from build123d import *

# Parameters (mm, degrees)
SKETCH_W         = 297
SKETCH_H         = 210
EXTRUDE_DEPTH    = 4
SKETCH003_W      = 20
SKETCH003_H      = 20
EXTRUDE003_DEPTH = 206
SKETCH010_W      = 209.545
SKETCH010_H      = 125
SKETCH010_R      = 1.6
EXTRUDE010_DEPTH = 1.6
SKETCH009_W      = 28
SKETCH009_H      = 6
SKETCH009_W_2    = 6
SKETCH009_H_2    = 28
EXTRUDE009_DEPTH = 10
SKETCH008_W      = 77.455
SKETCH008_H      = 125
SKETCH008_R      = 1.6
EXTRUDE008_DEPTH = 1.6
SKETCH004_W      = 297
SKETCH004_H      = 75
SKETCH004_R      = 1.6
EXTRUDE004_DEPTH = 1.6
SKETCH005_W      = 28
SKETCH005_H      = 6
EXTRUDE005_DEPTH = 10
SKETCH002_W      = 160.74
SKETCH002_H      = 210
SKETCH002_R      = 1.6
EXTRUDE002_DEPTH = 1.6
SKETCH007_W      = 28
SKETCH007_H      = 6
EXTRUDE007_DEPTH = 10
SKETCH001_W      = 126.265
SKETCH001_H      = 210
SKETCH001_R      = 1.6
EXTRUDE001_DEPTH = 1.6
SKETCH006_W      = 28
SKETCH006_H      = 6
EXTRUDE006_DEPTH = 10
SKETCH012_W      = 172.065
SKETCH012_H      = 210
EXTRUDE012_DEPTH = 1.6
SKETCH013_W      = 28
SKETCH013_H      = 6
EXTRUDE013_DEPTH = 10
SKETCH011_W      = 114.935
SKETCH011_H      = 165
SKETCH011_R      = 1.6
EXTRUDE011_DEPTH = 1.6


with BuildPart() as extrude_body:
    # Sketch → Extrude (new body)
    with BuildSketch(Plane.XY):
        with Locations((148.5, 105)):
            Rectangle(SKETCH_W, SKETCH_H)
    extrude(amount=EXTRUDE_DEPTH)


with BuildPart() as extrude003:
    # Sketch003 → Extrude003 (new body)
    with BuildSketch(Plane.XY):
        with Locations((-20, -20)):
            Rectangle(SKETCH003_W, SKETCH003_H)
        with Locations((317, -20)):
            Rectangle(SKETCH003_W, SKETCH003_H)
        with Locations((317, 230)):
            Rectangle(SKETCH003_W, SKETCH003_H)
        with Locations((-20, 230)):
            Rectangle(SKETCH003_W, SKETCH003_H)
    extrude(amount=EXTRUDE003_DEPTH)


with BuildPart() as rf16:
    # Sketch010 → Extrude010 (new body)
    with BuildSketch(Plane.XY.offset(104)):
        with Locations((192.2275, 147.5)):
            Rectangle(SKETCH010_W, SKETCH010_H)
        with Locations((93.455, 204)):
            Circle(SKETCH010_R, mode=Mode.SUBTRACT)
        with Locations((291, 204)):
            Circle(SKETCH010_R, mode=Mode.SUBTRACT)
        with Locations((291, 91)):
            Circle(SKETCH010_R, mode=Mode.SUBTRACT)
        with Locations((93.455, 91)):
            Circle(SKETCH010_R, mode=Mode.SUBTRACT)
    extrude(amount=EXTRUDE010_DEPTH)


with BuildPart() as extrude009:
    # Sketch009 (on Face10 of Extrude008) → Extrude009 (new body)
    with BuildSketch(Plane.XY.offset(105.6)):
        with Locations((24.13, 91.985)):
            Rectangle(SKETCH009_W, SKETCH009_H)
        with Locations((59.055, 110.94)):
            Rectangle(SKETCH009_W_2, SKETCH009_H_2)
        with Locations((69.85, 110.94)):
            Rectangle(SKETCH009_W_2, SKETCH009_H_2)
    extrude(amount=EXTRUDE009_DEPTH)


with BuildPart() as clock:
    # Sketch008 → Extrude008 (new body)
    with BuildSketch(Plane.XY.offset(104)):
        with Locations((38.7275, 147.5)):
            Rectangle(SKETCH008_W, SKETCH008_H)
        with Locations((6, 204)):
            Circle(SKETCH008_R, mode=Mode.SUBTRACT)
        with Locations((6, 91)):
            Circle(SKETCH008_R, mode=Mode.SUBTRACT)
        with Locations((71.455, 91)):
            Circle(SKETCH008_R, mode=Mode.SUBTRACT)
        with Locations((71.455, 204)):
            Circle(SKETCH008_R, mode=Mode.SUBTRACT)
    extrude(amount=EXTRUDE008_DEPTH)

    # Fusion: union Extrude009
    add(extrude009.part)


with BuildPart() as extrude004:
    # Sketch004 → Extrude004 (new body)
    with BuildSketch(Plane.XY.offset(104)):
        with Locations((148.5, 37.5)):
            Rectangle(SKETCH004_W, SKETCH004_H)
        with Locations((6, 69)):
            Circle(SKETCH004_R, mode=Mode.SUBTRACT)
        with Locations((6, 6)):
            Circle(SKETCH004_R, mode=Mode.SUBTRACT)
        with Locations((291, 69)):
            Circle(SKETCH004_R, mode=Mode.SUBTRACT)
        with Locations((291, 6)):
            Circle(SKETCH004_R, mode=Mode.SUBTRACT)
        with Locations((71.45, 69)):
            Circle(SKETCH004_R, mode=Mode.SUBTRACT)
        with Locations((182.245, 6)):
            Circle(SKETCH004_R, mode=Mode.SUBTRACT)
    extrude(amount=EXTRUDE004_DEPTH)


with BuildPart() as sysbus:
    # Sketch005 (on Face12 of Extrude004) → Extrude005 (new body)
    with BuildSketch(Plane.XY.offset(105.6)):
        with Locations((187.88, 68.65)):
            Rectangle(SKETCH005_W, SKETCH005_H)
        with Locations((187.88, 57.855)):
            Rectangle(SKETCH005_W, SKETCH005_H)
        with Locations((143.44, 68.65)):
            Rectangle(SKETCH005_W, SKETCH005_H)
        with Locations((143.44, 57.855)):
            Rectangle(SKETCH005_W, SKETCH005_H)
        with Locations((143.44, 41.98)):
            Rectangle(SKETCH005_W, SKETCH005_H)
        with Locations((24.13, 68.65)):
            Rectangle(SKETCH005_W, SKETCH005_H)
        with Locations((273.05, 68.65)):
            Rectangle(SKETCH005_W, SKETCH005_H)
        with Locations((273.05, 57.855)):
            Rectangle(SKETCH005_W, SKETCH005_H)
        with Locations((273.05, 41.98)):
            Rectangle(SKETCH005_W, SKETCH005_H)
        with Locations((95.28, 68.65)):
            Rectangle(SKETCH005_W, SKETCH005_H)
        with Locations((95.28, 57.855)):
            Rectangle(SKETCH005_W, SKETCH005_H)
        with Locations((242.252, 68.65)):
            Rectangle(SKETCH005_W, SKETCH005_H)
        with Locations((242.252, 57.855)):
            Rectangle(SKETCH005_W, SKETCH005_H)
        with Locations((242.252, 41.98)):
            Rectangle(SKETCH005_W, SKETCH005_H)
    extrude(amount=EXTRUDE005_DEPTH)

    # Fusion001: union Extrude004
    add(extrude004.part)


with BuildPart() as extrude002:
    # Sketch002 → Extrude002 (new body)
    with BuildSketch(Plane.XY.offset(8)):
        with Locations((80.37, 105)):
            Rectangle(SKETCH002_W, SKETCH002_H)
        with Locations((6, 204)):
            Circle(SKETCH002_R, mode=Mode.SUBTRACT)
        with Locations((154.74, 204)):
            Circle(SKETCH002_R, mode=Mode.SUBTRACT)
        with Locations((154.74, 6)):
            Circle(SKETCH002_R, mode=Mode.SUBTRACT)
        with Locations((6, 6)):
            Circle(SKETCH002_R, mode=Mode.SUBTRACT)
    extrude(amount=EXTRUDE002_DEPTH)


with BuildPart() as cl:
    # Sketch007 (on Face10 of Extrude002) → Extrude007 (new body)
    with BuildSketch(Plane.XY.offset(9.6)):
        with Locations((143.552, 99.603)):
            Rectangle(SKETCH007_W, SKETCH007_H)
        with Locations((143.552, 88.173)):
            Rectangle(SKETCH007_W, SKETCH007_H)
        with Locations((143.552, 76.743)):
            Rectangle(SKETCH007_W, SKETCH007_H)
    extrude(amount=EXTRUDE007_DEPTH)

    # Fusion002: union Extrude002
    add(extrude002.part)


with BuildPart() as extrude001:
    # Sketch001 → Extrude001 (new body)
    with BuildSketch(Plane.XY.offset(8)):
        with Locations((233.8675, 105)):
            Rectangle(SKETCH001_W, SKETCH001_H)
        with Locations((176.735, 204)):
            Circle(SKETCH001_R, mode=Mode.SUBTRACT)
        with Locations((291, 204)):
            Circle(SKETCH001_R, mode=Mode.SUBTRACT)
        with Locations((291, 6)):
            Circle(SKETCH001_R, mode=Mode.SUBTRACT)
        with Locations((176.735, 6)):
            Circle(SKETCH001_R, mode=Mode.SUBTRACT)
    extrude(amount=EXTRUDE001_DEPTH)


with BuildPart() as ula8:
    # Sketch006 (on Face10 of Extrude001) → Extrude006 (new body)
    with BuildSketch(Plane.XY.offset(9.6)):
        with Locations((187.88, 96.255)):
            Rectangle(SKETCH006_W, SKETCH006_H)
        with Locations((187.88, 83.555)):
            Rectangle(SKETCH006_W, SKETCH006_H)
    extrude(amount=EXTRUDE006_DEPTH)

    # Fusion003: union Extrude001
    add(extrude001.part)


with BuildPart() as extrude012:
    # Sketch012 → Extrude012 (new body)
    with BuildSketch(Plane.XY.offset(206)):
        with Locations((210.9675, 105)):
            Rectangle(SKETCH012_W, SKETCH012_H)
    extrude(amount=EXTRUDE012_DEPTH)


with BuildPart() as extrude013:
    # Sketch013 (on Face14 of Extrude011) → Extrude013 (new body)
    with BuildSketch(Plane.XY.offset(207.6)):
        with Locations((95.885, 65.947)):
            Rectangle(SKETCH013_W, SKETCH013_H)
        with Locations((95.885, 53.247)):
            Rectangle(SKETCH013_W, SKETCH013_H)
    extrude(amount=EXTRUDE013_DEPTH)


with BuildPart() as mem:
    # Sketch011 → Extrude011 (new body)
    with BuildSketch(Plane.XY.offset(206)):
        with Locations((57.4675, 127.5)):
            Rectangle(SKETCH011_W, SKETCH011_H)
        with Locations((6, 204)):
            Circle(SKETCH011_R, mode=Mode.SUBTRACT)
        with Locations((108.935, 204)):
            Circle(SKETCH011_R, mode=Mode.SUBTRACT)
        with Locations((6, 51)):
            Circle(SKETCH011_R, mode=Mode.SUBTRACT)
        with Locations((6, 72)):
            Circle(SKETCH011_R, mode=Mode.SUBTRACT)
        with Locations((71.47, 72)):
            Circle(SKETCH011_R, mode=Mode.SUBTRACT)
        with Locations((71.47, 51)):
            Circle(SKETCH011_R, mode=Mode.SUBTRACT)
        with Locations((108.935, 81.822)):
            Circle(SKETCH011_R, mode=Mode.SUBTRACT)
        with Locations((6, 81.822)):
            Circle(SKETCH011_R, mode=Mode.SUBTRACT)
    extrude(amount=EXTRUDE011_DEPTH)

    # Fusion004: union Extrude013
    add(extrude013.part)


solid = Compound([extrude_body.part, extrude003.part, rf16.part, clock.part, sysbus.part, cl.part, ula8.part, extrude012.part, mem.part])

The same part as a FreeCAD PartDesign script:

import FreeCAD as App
import Part
import Sketcher


def add_polygon(sketch, points):
    """Adds a closed chain of lines whose ends are joined by coincident constraints."""
    first, n = sketch.GeometryCount, len(points)
    for a, b in zip(points, points[1:] + points[:1]):
        sketch.addGeometry(Part.LineSegment(App.Vector(*a, 0), App.Vector(*b, 0)), False)
    for i in range(n):
        sketch.addConstraint(Sketcher.Constraint("Coincident", first + i, 2, first + (i + 1) % n, 1))

doc = App.newDocument("Part")
params = doc.addObject("Spreadsheet::Sheet", "Params")
for row, (alias, value) in enumerate([
    ("sketch1_width", "297 mm"),
    ("sketch1_height", "210 mm"),
    ("pad1_length", "4 mm"),
    ("sketch2_width", "20 mm"),
    ("pad2_length", "206 mm"),
    ("sketch3_diameter", "3.2 mm"),
    ("sketch3_height", "125 mm"),
    ("pad3_length", "1.6 mm"),
    ("sketch4_width", "28 mm"),
    ("sketch4_width2", "6 mm"),
    ("pad4_length", "10 mm"),
    ("sketch5_diameter", "3.2 mm"),
    ("sketch5_height", "125 mm"),
    ("pad5_length", "1.6 mm"),
    ("sketch6_diameter", "3.2 mm"),
    ("sketch6_width", "297 mm"),
    ("sketch6_height", "75 mm"),
    ("pad6_length", "1.6 mm"),
    ("sketch7_width", "28 mm"),
    ("sketch7_height", "6 mm"),
    ("pad7_length", "10 mm"),
    ("sketch8_diameter", "3.2 mm"),
    ("sketch8_height", "210 mm"),
    ("sketch8_width", "160.74 mm"),
    ("pad8_length", "1.6 mm"),
    ("sketch9_width", "28 mm"),
    ("sketch9_height", "6 mm"),
    ("pad9_length", "10 mm"),
    ("sketch10_diameter", "3.2 mm"),
    ("sketch10_height", "210 mm"),
    ("pad10_length", "1.6 mm"),
    ("sketch11_width", "28 mm"),
    ("sketch11_height", "6 mm"),
    ("pad11_length", "10 mm"),
    ("sketch12_height", "210 mm"),
    ("pad12_length", "1.6 mm"),
    ("sketch13_width", "28 mm"),
    ("sketch13_height", "6 mm"),
    ("pad13_length", "10 mm"),
    ("sketch14_diameter", "3.2 mm"),
    ("sketch14_height", "165 mm"),
    ("pad14_length", "1.6 mm"),
], start=1):
    params.set(f"A{row}", alias)
    params.set(f"B{row}", "=" + value)
    params.setAlias(f"B{row}", alias)

body = doc.addObject("PartDesign::Body", "Body")

sketch1 = doc.addObject("Sketcher::SketchObject", "Sketch")
body.addObject(sketch1)
sketch1.AttachmentSupport = (doc.XY_Plane, [""])
sketch1.MapMode = "FlatFace"
add_polygon(sketch1, [(0, 210), (0, 0), (297, 0), (297, 210)])
sketch1.addConstraint([
    Sketcher.Constraint("Vertical", 0),
    Sketcher.Constraint("Horizontal", 1),
    Sketcher.Constraint("Vertical", 2),
    Sketcher.Constraint("Horizontal", 3),
    Sketcher.Constraint("Coincident", 0, 2, -1, 1),
    Sketcher.Constraint("DistanceX", 1, 1, 1, 2, 297.0),
    Sketcher.Constraint("DistanceY", 0, 2, 0, 1, 210.0),
])
sketch1.setExpression("Constraints[9]", "Params.sketch1_width")
sketch1.setExpression("Constraints[10]", "Params.sketch1_height")
pad1 = doc.addObject("PartDesign::Pad", "Pad")
body.addObject(pad1)
pad1.Profile = sketch1
pad1.setExpression("Length", "Params.pad1_length")
body2 = doc.addObject("PartDesign::Body", "Body001")
body2.AllowCompound = True

sketch2 = doc.addObject("Sketcher::SketchObject", "Sketch001")
body2.addObject(sketch2)
sketch2.AttachmentSupport = (doc.getObject("XY_Plane001"), [""])
sketch2.MapMode = "FlatFace"
add_polygon(sketch2, [(-30, -10), (-30, -30), (-10, -30), (-10, -10)])
add_polygon(sketch2, [(307, -10), (307, -30), (327, -30), (327, -10)])
add_polygon(sketch2, [(307, 240), (307, 220), (327, 220), (327, 240)])
add_polygon(sketch2, [(-30, 240), (-30, 220), (-10, 220), (-10, 240)])
sketch2.addConstraint([
    Sketcher.Constraint("Vertical", 0),
    Sketcher.Constraint("Horizontal", 1),
    Sketcher.Constraint("Vertical", 2),
    Sketcher.Constraint("Horizontal", 3),
    Sketcher.Constraint("Vertical", 4),
    Sketcher.Constraint("Horizontal", 5),
    Sketcher.Constraint("Vertical", 6),
    Sketcher.Constraint("Horizontal", 7),
    Sketcher.Constraint("Vertical", 8),
    Sketcher.Constraint("Horizontal", 9),
    Sketcher.Constraint("Vertical", 10),
    Sketcher.Constraint("Horizontal", 11),
    Sketcher.Constraint("Vertical", 12),
    Sketcher.Constraint("Horizontal", 13),
    Sketcher.Constraint("Vertical", 14),
    Sketcher.Constraint("Horizontal", 15),
    Sketcher.Constraint("Horizontal", 1, 2, 4, 2),
    Sketcher.Constraint("Horizontal", 3, 2, 6, 2),
    Sketcher.Constraint("Horizontal", 9, 2, 12, 2),
    Sketcher.Constraint("Horizontal", 11, 2, 14, 2),
    Sketcher.Constraint("Vertical", 7, 2, 8, 2),
    Sketcher.Constraint("Vertical", 6, 2, 9, 2),
    Sketcher.Constraint("Vertical", 3, 2, 12, 2),
    Sketcher.Constraint("Vertical", 2, 2, 13, 2),
    Sketcher.Constraint("Equal", 3, 5),
    Sketcher.Constraint("Equal", 15, 0),
    Sketcher.Constraint("Equal", 6, 8),
    Sketcher.Constraint("DistanceX", 1, 1, 1, 2, 20.0),
    Sketcher.Constraint("DistanceX", 0, 2, -1, 1, 30.0),
    Sketcher.Constraint("DistanceY", 0, 2, -1, 1, 30.0),
    Sketcher.Constraint("DistanceX", -1, 1, 4, 2, 307.0),
    Sketcher.Constraint("DistanceY", -1, 1, 8, 2, 220.0),
])
sketch2.setExpression("Constraints[43]", "Params.sketch2_width")
pad2 = doc.addObject("PartDesign::Pad", "Pad001")
body2.addObject(pad2)
pad2.Profile = sketch2
pad2.setExpression("Length", "Params.pad2_length")
body3 = doc.addObject("PartDesign::Body", "Body002")

sketch3 = doc.addObject("Sketcher::SketchObject", "Sketch002")
body3.addObject(sketch3)
sketch3.AttachmentSupport = (doc.getObject("XY_Plane002"), [""])
sketch3.MapMode = "FlatFace"
sketch3.AttachmentOffset = App.Placement(App.Vector(0, 0, 104), App.Rotation())
add_polygon(sketch3, [(87.5, 210), (87.5, 85), (297, 85), (297, 210)])
sketch3.addGeometry(Part.Circle(App.Vector(93.5, 91, 0), App.Vector(0, 0, 1), 1.6), False)
sketch3.addGeometry(Part.Circle(App.Vector(291, 91, 0), App.Vector(0, 0, 1), 1.6), False)
sketch3.addGeometry(Part.Circle(App.Vector(93.5, 204, 0), App.Vector(0, 0, 1), 1.6), False)
sketch3.addGeometry(Part.Circle(App.Vector(291, 204, 0), App.Vector(0, 0, 1), 1.6), False)
sketch3.addConstraint([
    Sketcher.Constraint("Vertical", 0),
    Sketcher.Constraint("Horizontal", 1),
    Sketcher.Constraint("Vertical", 2),
    Sketcher.Constraint("Horizontal", 3),
    Sketcher.Constraint("Equal", 4, 5),
    Sketcher.Constraint("Equal", 5, 6),
    Sketcher.Constraint("Equal", 6, 7),
    Sketcher.Constraint("Horizontal", 4, 3, 5, 3),
    Sketcher.Constraint("Horizontal", 6, 3, 7, 3),
    Sketcher.Constraint("Vertical", 4, 3, 6, 3),
    Sketcher.Constraint("Vertical", 5, 3, 7, 3),
    Sketcher.Constraint("Diameter", 4, 3.2),
    Sketcher.Constraint("DistanceY", 0, 2, 0, 1, 125.0),
    Sketcher.Constraint("DistanceY", -1, 1, 4, 3, 91.0),
    Sketcher.Constraint("DistanceX", -1, 1, 5, 3, 291.0),
    Sketcher.Constraint("DistanceY", -1, 1, 6, 3, 204.0),
    Sketcher.Constraint("DistanceY", -1, 1, 0, 2, 85.0),
    Sketcher.Constraint("DistanceX", -1, 1, 1, 2, 297.0),
    Sketcher.Constraint("DistanceX", 0, 2, 4, 3, 6.0),
    Sketcher.Constraint("DistanceX", 1, 1, 1, 2, 209.545),
])
sketch3.setExpression("Constraints[15]", "Params.sketch3_diameter")
sketch3.setExpression("Constraints[16]", "Params.sketch3_height")
pad3 = doc.addObject("PartDesign::Pad", "Pad002")
body3.addObject(pad3)
pad3.Profile = sketch3
pad3.setExpression("Length", "Params.pad3_length")
body4 = doc.addObject("PartDesign::Body", "Body003")
body4.AllowCompound = True

sketch4 = doc.addObject("Sketcher::SketchObject", "Sketch003")
body4.addObject(sketch4)
sketch4.AttachmentSupport = (doc.getObject("XY_Plane003"), [""])
sketch4.MapMode = "FlatFace"
sketch4.AttachmentOffset = App.Placement(App.Vector(0, 0, 105.6), App.Rotation())
add_polygon(sketch4, [(10, 95), (10, 89), (38, 89), (38, 95)])
add_polygon(sketch4, [(56, 125), (56, 97), (62, 97), (62, 125)])
add_polygon(sketch4, [(67, 125), (67, 97), (73, 97), (73, 125)])
sketch4.addConstraint([
    Sketcher.Constraint("Vertical", 0),
    Sketcher.Constraint("Horizontal", 1),
    Sketcher.Constraint("Vertical", 2),
    Sketcher.Constraint("Horizontal", 3),
    Sketcher.Constraint("Vertical", 4),
    Sketcher.Constraint("Horizontal", 5),
    Sketcher.Constraint("Vertical", 6),
    Sketcher.Constraint("Horizontal", 7),
    Sketcher.Constraint("Vertical", 8),
    Sketcher.Constraint("Horizontal", 9),
    Sketcher.Constraint("Vertical", 10),
    Sketcher.Constraint("Horizontal", 11),
    Sketcher.Constraint("Horizontal", 5, 2, 8, 2),
    Sketcher.Constraint("Horizontal", 7, 2, 10, 2),
    Sketcher.Constraint("Equal", 7, 9),
    Sketcher.Constraint("Equal", 11, 0),
    Sketcher.Constraint("Equal", 3, 4),
    Sketcher.Constraint("DistanceX", 1, 1, 1, 2, 28.0),
    Sketcher.Constraint("DistanceX", 5, 1, 5, 2, 6.0),
    Sketcher.Constraint("DistanceX", -1, 1, 0, 2, 10.13),
    Sketcher.Constraint("DistanceY", -1, 1, 4, 2, 96.94),
    Sketcher.Constraint("DistanceX", -1, 1, 8, 2, 66.85),
    Sketcher.Constraint("DistanceY", -1, 1, 0, 2, 88.985),
    Sketcher.Constraint("DistanceX", -1, 1, 4, 2, 56.055),
])
sketch4.setExpression("Constraints[29]", "Params.sketch4_width")
sketch4.setExpression("Constraints[30]", "Params.sketch4_width2")
pad4 = doc.addObject("PartDesign::Pad", "Pad003")
body4.addObject(pad4)
pad4.Profile = sketch4
pad4.setExpression("Length", "Params.pad4_length")
body5 = doc.addObject("PartDesign::Body", "Body004")

sketch5 = doc.addObject("Sketcher::SketchObject", "Sketch004")
body5.addObject(sketch5)
sketch5.AttachmentSupport = (doc.getObject("XY_Plane004"), [""])
sketch5.MapMode = "FlatFace"
sketch5.AttachmentOffset = App.Placement(App.Vector(0, 0, 104), App.Rotation())
add_polygon(sketch5, [(0, 210), (0, 85), (77.5, 85), (77.5, 210)])
sketch5.addGeometry(Part.Circle(App.Vector(6, 91, 0), App.Vector(0, 0, 1), 1.6), False)
sketch5.addGeometry(Part.Circle(App.Vector(71.5, 91, 0), App.Vector(0, 0, 1), 1.6), False)
sketch5.addGeometry(Part.Circle(App.Vector(6, 204, 0), App.Vector(0, 0, 1), 1.6), False)
sketch5.addGeometry(Part.Circle(App.Vector(71.5, 204, 0), App.Vector(0, 0, 1), 1.6), False)
sketch5.addConstraint([
    Sketcher.Constraint("Vertical", 0),
    Sketcher.Constraint("Horizontal", 1),
    Sketcher.Constraint("Vertical", 2),
    Sketcher.Constraint("Horizontal", 3),
    Sketcher.Constraint("Equal", 4, 5),
    Sketcher.Constraint("Equal", 5, 6),
    Sketcher.Constraint("Equal", 6, 7),
    Sketcher.Constraint("PointOnObject", 0, 2, -2),
    Sketcher.Constraint("Horizontal", 4, 3, 5, 3),
    Sketcher.Constraint("Horizontal", 6, 3, 7, 3),
    Sketcher.Constraint("Vertical", 4, 3, 6, 3),
    Sketcher.Constraint("Vertical", 5, 3, 7, 3),
    Sketcher.Constraint("Diameter", 4, 3.2),
    Sketcher.Constraint("DistanceY", 0, 2, 0, 1, 125.0),
    Sketcher.Constraint("DistanceX", -1, 1, 4, 3, 6.0),
    Sketcher.Constraint("DistanceY", -1, 1, 4, 3, 91.0),
    Sketcher.Constraint("DistanceY", -1, 1, 6, 3, 204.0),
    Sketcher.Constraint("DistanceY", -1, 1, 0, 2, 85.0),
    Sketcher.Constraint("DistanceX", 5, 3, 1, 2, 6.0),
    Sketcher.Constraint("DistanceX", 1, 1, 1, 2, 77.455),
])
sketch5.setExpression("Constraints[16]", "Params.sketch5_diameter")
sketch5.setExpression("Constraints[17]", "Params.sketch5_height")
pad5 = doc.addObject("PartDesign::Pad", "Pad004")
body5.addObject(pad5)
pad5.Profile = sketch5
pad5.setExpression("Length", "Params.pad5_length")
doc.recompute()

boolean = doc.addObject("PartDesign::Boolean", "Boolean")
body5.addObject(boolean)
boolean.Type = "Fuse"
boolean.addObjects([body4])
body6 = doc.addObject("PartDesign::Body", "Body005")

sketch6 = doc.addObject("Sketcher::SketchObject", "Sketch005")
body6.addObject(sketch6)
sketch6.AttachmentSupport = (doc.getObject("XY_Plane005"), [""])
sketch6.MapMode = "FlatFace"
sketch6.AttachmentOffset = App.Placement(App.Vector(0, 0, 104), App.Rotation())
add_polygon(sketch6, [(0, 75), (0, 0), (297, 0), (297, 75)])
sketch6.addGeometry(Part.Circle(App.Vector(6, 6, 0), App.Vector(0, 0, 1), 1.6), False)
sketch6.addGeometry(Part.Circle(App.Vector(182.2, 6, 0), App.Vector(0, 0, 1), 1.6), False)
sketch6.addGeometry(Part.Circle(App.Vector(291, 6, 0), App.Vector(0, 0, 1), 1.6), False)
sketch6.addGeometry(Part.Circle(App.Vector(6, 69, 0), App.Vector(0, 0, 1), 1.6), False)
sketch6.addGeometry(Part.Circle(App.Vector(71.5, 69, 0), App.Vector(0, 0, 1), 1.6), False)
sketch6.addGeometry(Part.Circle(App.Vector(291, 69, 0), App.Vector(0, 0, 1), 1.6), False)
sketch6.addConstraint([
    Sketcher.Constraint("Vertical", 0),
    Sketcher.Constraint("Horizontal", 1),
    Sketcher.Constraint("Vertical", 2),
    Sketcher.Constraint("Horizontal", 3),
    Sketcher.Constraint("Coincident", 0, 2, -1, 1),
    Sketcher.Constraint("Equal", 4, 5),
    Sketcher.Constraint("Equal", 5, 6),
    Sketcher.Constraint("Equal", 6, 7),
    Sketcher.Constraint("Equal", 7, 8),
    Sketcher.Constraint("Equal", 8, 9),
    Sketcher.Constraint("Horizontal", 4, 3, 5, 3),
    Sketcher.Constraint("Horizontal", 5, 3, 6, 3),
    Sketcher.Constraint("Horizontal", 7, 3, 8, 3),
    Sketcher.Constraint("Horizontal", 8, 3, 9, 3),
    Sketcher.Constraint("Vertical", 4, 3, 7, 3),
    Sketcher.Constraint("Vertical", 6, 3, 9, 3),
    Sketcher.Constraint("Diameter", 4, 3.2),
    Sketcher.Constraint("DistanceX", 1, 1, 1, 2, 297.0),
    Sketcher.Constraint("DistanceY", 0, 2, 0, 1, 75.0),
    Sketcher.Constraint("DistanceX", -1, 1, 4, 3, 6.0),
    Sketcher.Constraint("DistanceY", -1, 1, 4, 3, 6.0),
    Sketcher.Constraint("DistanceX", -1, 1, 6, 3, 291.0),
    Sketcher.Constraint("DistanceY", -1, 1, 7, 3, 69.0),
    Sketcher.Constraint("DistanceX", -1, 1, 8, 3, 71.45),
    Sketcher.Constraint("DistanceX", -1, 1, 5, 3, 182.245),
])
sketch6.setExpression("Constraints[20]", "Params.sketch6_diameter")
sketch6.setExpression("Constraints[21]", "Params.sketch6_width")
sketch6.setExpression("Constraints[22]", "Params.sketch6_height")
pad6 = doc.addObject("PartDesign::Pad", "Pad005")
body6.addObject(pad6)
pad6.Profile = sketch6
pad6.setExpression("Length", "Params.pad6_length")
body7 = doc.addObject("PartDesign::Body", "Body006")
body7.AllowCompound = True

sketch7 = doc.addObject("Sketcher::SketchObject", "Sketch006")
body7.addObject(sketch7)
sketch7.AttachmentSupport = (doc.getObject("XY_Plane006"), [""])
sketch7.MapMode = "FlatFace"
sketch7.AttachmentOffset = App.Placement(App.Vector(0, 0, 105.6), App.Rotation())
add_polygon(sketch7, [(174, 72), (174, 66), (202, 66), (202, 72)])
add_polygon(sketch7, [(174, 61), (174, 55), (202, 55), (202, 61)])
add_polygon(sketch7, [(129, 72), (129, 66), (157, 66), (157, 72)])
add_polygon(sketch7, [(129, 61), (129, 55), (157, 55), (157, 61)])
add_polygon(sketch7, [(129, 45), (129, 39), (157, 39), (157, 45)])
add_polygon(sketch7, [(10, 72), (10, 66), (38, 66), (38, 72)])
add_polygon(sketch7, [(259, 72), (259, 66), (287, 66), (287, 72)])
add_polygon(sketch7, [(259, 61), (259, 55), (287, 55), (287, 61)])
add_polygon(sketch7, [(259, 45), (259, 39), (287, 39), (287, 45)])
add_polygon(sketch7, [(81, 72), (81, 66), (109, 66), (109, 72)])
add_polygon(sketch7, [(81, 61), (81, 55), (109, 55), (109, 61)])
add_polygon(sketch7, [(228, 72), (228, 66), (256, 66), (256, 72)])
add_polygon(sketch7, [(228, 61), (228, 55), (256, 55), (256, 61)])
add_polygon(sketch7, [(228, 45), (228, 39), (256, 39), (256, 45)])
sketch7.addConstraint([
    Sketcher.Constraint("Vertical", 0),
    Sketcher.Constraint("Horizontal", 1),
    Sketcher.Constraint("Vertical", 2),
    Sketcher.Constraint("Horizontal", 3),
    Sketcher.Constraint("Vertical", 4),
    Sketcher.Constraint("Horizontal", 5),
    Sketcher.Constraint("Vertical", 6),
    Sketcher.Constraint("Horizontal", 7),
    Sketcher.Constraint("Vertical", 8),
    Sketcher.Constraint("Horizontal", 9),
    Sketcher.Constraint("Vertical", 10),
    Sketcher.Constraint("Horizontal", 11),
    Sketcher.Constraint("Vertical", 12),
    Sketcher.Constraint("Horizontal", 13),
    Sketcher.Constraint("Vertical", 14),
    Sketcher.Constraint("Horizontal", 15),
    Sketcher.Constraint("Vertical", 16),
    Sketcher.Constraint("Horizontal", 17),
    Sketcher.Constraint("Vertical", 18),
    Sketcher.Constraint("Horizontal", 19),
    Sketcher.Constraint("Vertical", 20),
    Sketcher.Constraint("Horizontal", 21),
    Sketcher.Constraint("Vertical", 22),
    Sketcher.Constraint("Horizontal", 23),
    Sketcher.Constraint("Vertical", 24),
    Sketcher.Constraint("Horizontal", 25),
    Sketcher.Constraint("Vertical", 26),
    Sketcher.Constraint("Horizontal", 27),
    Sketcher.Constraint("Vertical", 28),
    Sketcher.Constraint("Horizontal", 29),
    Sketcher.Constraint("Vertical", 30),
    Sketcher.Constraint("Horizontal", 31),
    Sketcher.Constraint("Vertical", 32),
    Sketcher.Constraint("Horizontal", 33),
    Sketcher.Constraint("Vertical", 34),
    Sketcher.Constraint("Horizontal", 35),
    Sketcher.Constraint("Vertical", 36),
    Sketcher.Constraint("Horizontal", 37),
    Sketcher.Constraint("Vertical", 38),
    Sketcher.Constraint("Horizontal", 39),
    Sketcher.Constraint("Vertical", 40),
    Sketcher.Constraint("Horizontal", 41),
    Sketcher.Constraint("Vertical", 42),
    Sketcher.Constraint("Horizontal", 43),
    Sketcher.Constraint("Vertical", 44),
    Sketcher.Constraint("Horizontal", 45),
    Sketcher.Constraint("Vertical", 46),
    Sketcher.Constraint("Horizontal", 47),
    Sketcher.Constraint("Vertical", 48),
    Sketcher.Constraint("Horizontal", 49),
    Sketcher.Constraint("Vertical", 50),
    Sketcher.Constraint("Horizontal", 51),
    Sketcher.Constraint("Vertical", 52),
    Sketcher.Constraint("Horizontal", 53),
    Sketcher.Constraint("Vertical", 54),
    Sketcher.Constraint("Horizontal", 55),
    Sketcher.Constraint("Horizontal", 1, 2, 8, 2),
    Sketcher.Constraint("Horizontal", 3, 2, 10, 2),
    Sketcher.Constraint("Horizontal", 5, 2, 12, 2),
    Sketcher.Constraint("Horizontal", 7, 2, 14, 2),
    Sketcher.Constraint("Horizontal", 9, 2, 20, 2),
    Sketcher.Constraint("Horizontal", 11, 2, 22, 2),
    Sketcher.Constraint("Horizontal", 21, 2, 24, 2),
    Sketcher.Constraint("Horizontal", 23, 2, 26, 2),
    Sketcher.Constraint("Horizontal", 13, 2, 28, 2),
    Sketcher.Constraint("Horizontal", 15, 2, 30, 2),
    Sketcher.Constraint("Horizontal", 17, 2, 32, 2),
    Sketcher.Constraint("Horizontal", 19, 2, 34, 2),
    Sketcher.Constraint("Horizontal", 25, 2, 36, 2),
    Sketcher.Constraint("Horizontal", 27, 2, 38, 2),
    Sketcher.Constraint("Horizontal", 29, 2, 40, 2),
    Sketcher.Constraint("Horizontal", 31, 2, 42, 2),
    Sketcher.Constraint("Horizontal", 37, 2, 44, 2),
    Sketcher.Constraint("Horizontal", 39, 2, 46, 2),
    Sketcher.Constraint("Horizontal", 41, 2, 48, 2),
    Sketcher.Constraint("Horizontal", 43, 2, 50, 2),
    Sketcher.Constraint("Horizontal", 33, 2, 52, 2),
    Sketcher.Constraint("Horizontal", 35, 2, 54, 2),
    Sketcher.Constraint("Vertical", 3, 2, 4, 2),
    Sketcher.Constraint("Vertical", 2, 2, 5, 2),
    Sketcher.Constraint("Vertical", 11, 2, 12, 2),
    Sketcher.Constraint("Vertical", 10, 2, 13, 2),
    Sketcher.Constraint("Vertical", 15, 2, 16, 2),
    Sketcher.Constraint("Vertical", 14, 2, 17, 2),
    Sketcher.Constraint("Vertical", 27, 2, 28, 2),
    Sketcher.Constraint("Vertical", 26, 2, 29, 2),
    Sketcher.Constraint("Vertical", 31, 2, 32, 2),
    Sketcher.Constraint("Vertical", 30, 2, 33, 2),
    Sketcher.Constraint("Vertical", 39, 2, 40, 2),
    Sketcher.Constraint("Vertical", 38, 2, 41, 2),
    Sketcher.Constraint("Vertical", 47, 2, 48, 2),
    Sketcher.Constraint("Vertical", 46, 2, 49, 2),
    Sketcher.Constraint("Vertical", 51, 2, 52, 2),
    Sketcher.Constraint("Vertical", 50, 2, 53, 2),
    Sketcher.Constraint("Equal", 7, 9),
    Sketcher.Constraint("Equal", 19, 21),
    Sketcher.Constraint("Equal", 23, 25),
    Sketcher.Constraint("Equal", 35, 37),
    Sketcher.Constraint("Equal", 43, 45),
    Sketcher.Constraint("Equal", 2, 4),
    Sketcher.Constraint("Equal", 14, 16),
    Sketcher.Constraint("DistanceX", 1, 1, 1, 2, 28.0),
    Sketcher.Constraint("DistanceY", 0, 2, 0, 1, 6.0),
    Sketcher.Constraint("DistanceX", -1, 1, 0, 2, 173.88),
    Sketcher.Constraint("DistanceY", -1, 1, 0, 2, 65.65),
    Sketcher.Constraint("DistanceX", -1, 1, 8, 2, 129.44),
    Sketcher.Constraint("DistanceY", -1, 1, 16, 2, 38.98),
    Sketcher.Constraint("DistanceX", -1, 1, 20, 2, 10.13),
    Sketcher.Constraint("DistanceX", -1, 1, 24, 2, 259.05),
    Sketcher.Constraint("DistanceX", -1, 1, 36, 2, 81.28),
    Sketcher.Constraint("DistanceY", -1, 1, 4, 2, 54.855),
    Sketcher.Constraint("DistanceX", -1, 1, 44, 2, 228.252),
])
sketch7.setExpression("Constraints[157]", "Params.sketch7_width")
sketch7.setExpression("Constraints[158]", "Params.sketch7_height")
pad7 = doc.addObject("PartDesign::Pad", "Pad006")
body7.addObject(pad7)
pad7.Profile = sketch7
pad7.setExpression("Length", "Params.pad7_length")
doc.recompute()

boolean2 = doc.addObject("PartDesign::Boolean", "Boolean001")
body7.addObject(boolean2)
boolean2.Type = "Fuse"
boolean2.addObjects([body6])
body8 = doc.addObject("PartDesign::Body", "Body007")

sketch8 = doc.addObject("Sketcher::SketchObject", "Sketch007")
body8.addObject(sketch8)
sketch8.AttachmentSupport = (doc.getObject("XY_Plane007"), [""])
sketch8.MapMode = "FlatFace"
sketch8.AttachmentOffset = App.Placement(App.Vector(0, 0, 8), App.Rotation())
add_polygon(sketch8, [(0, 210), (0, 0), (160.7, 0), (160.7, 210)])
sketch8.addGeometry(Part.Circle(App.Vector(6, 6, 0), App.Vector(0, 0, 1), 1.6), False)
sketch8.addGeometry(Part.Circle(App.Vector(154.7, 6, 0), App.Vector(0, 0, 1), 1.6), False)
sketch8.addGeometry(Part.Circle(App.Vector(6, 204, 0), App.Vector(0, 0, 1), 1.6), False)
sketch8.addGeometry(Part.Circle(App.Vector(154.7, 204, 0), App.Vector(0, 0, 1), 1.6), False)
sketch8.addConstraint([
    Sketcher.Constraint("Vertical", 0),
    Sketcher.Constraint("Horizontal", 1),
    Sketcher.Constraint("Vertical", 2),
    Sketcher.Constraint("Horizontal", 3),
    Sketcher.Constraint("Coincident", 0, 2, -1, 1),
    Sketcher.Constraint("Equal", 4, 5),
    Sketcher.Constraint("Equal", 5, 6),
    Sketcher.Constraint("Equal", 6, 7),
    Sketcher.Constraint("Horizontal", 4, 3, 5, 3),
    Sketcher.Constraint("Horizontal", 6, 3, 7, 3),
    Sketcher.Constraint("Vertical", 4, 3, 6, 3),
    Sketcher.Constraint("Vertical", 5, 3, 7, 3),
    Sketcher.Constraint("Diameter", 4, 3.2),
    Sketcher.Constraint("DistanceY", 0, 2, 0, 1, 210.0),
    Sketcher.Constraint("DistanceX", -1, 1, 4, 3, 6.0),
    Sketcher.Constraint("DistanceY", -1, 1, 4, 3, 6.0),
    Sketcher.Constraint("DistanceY", -1, 1, 6, 3, 204.0),
    Sketcher.Constraint("DistanceX", 5, 3, 1, 2, 6.0),
    Sketcher.Constraint("DistanceX", 1, 1, 1, 2, 160.74),
])
sketch8.setExpression("Constraints[16]", "Params.sketch8_diameter")
sketch8.setExpression("Constraints[17]", "Params.sketch8_height")
sketch8.setExpression("Constraints[22]", "Params.sketch8_width")
pad8 = doc.addObject("PartDesign::Pad", "Pad007")
body8.addObject(pad8)
pad8.Profile = sketch8
pad8.setExpression("Length", "Params.pad8_length")
body9 = doc.addObject("PartDesign::Body", "Body008")
body9.AllowCompound = True

sketch9 = doc.addObject("Sketcher::SketchObject", "Sketch008")
body9.addObject(sketch9)
sketch9.AttachmentSupport = (doc.getObject("XY_Plane008"), [""])
sketch9.MapMode = "FlatFace"
sketch9.AttachmentOffset = App.Placement(App.Vector(0, 0, 9.6), App.Rotation())
add_polygon(sketch9, [(130, 103), (130, 97), (158, 97), (158, 103)])
add_polygon(sketch9, [(130, 91), (130, 85), (158, 85), (158, 91)])
add_polygon(sketch9, [(130, 80), (130, 74), (158, 74), (158, 80)])
sketch9.addConstraint([
    Sketcher.Constraint("Vertical", 0),
    Sketcher.Constraint("Horizontal", 1),
    Sketcher.Constraint("Vertical", 2),
    Sketcher.Constraint("Horizontal", 3),
    Sketcher.Constraint("Vertical", 4),
    Sketcher.Constraint("Horizontal", 5),
    Sketcher.Constraint("Vertical", 6),
    Sketcher.Constraint("Horizontal", 7),
    Sketcher.Constraint("Vertical", 8),
    Sketcher.Constraint("Horizontal", 9),
    Sketcher.Constraint("Vertical", 10),
    Sketcher.Constraint("Horizontal", 11),
    Sketcher.Constraint("Vertical", 3, 2, 4, 2),
    Sketcher.Constraint("Vertical", 2, 2, 5, 2),
    Sketcher.Constraint("Vertical", 7, 2, 8, 2),
    Sketcher.Constraint("Vertical", 6, 2, 9, 2),
    Sketcher.Constraint("Equal", 2, 4),
    Sketcher.Constraint("Equal", 6, 8),
    Sketcher.Constraint("DistanceX", 1, 1, 1, 2, 28.0),
    Sketcher.Constraint("DistanceY", 0, 2, 0, 1, 6.0),
    Sketcher.Constraint("DistanceY", 4, 2, 0, 2, 11.43),
    Sketcher.Constraint("DistanceY", 8, 2, 4, 2, 11.43),
    Sketcher.Constraint("DistanceX", -1, 1, 0, 2, 129.552),
    Sketcher.Constraint("DistanceY", -1, 1, 0, 2, 96.603),
])
sketch9.setExpression("Constraints[30]", "Params.sketch9_width")
sketch9.setExpression("Constraints[31]", "Params.sketch9_height")
pad9 = doc.addObject("PartDesign::Pad", "Pad008")
body9.addObject(pad9)
pad9.Profile = sketch9
pad9.setExpression("Length", "Params.pad9_length")
doc.recompute()

boolean3 = doc.addObject("PartDesign::Boolean", "Boolean002")
body9.addObject(boolean3)
boolean3.Type = "Fuse"
boolean3.addObjects([body8])
body10 = doc.addObject("PartDesign::Body", "Body009")

sketch10 = doc.addObject("Sketcher::SketchObject", "Sketch009")
body10.addObject(sketch10)
sketch10.AttachmentSupport = (doc.getObject("XY_Plane009"), [""])
sketch10.MapMode = "FlatFace"
sketch10.AttachmentOffset = App.Placement(App.Vector(0, 0, 8), App.Rotation())
add_polygon(sketch10, [(170.7, 210), (170.7, 0), (297, 0), (297, 210)])
sketch10.addGeometry(Part.Circle(App.Vector(176.7, 6, 0), App.Vector(0, 0, 1), 1.6), False)
sketch10.addGeometry(Part.Circle(App.Vector(291, 6, 0), App.Vector(0, 0, 1), 1.6), False)
sketch10.addGeometry(Part.Circle(App.Vector(176.7, 204, 0), App.Vector(0, 0, 1), 1.6), False)
sketch10.addGeometry(Part.Circle(App.Vector(291, 204, 0), App.Vector(0, 0, 1), 1.6), False)
sketch10.addConstraint([
    Sketcher.Constraint("Vertical", 0),
    Sketcher.Constraint("Horizontal", 1),
    Sketcher.Constraint("Vertical", 2),
    Sketcher.Constraint("Horizontal", 3),
    Sketcher.Constraint("Equal", 4, 5),
    Sketcher.Constraint("Equal", 5, 6),
    Sketcher.Constraint("Equal", 6, 7),
    Sketcher.Constraint("PointOnObject", 0, 2, -1),
    Sketcher.Constraint("Horizontal", 4, 3, 5, 3),
    Sketcher.Constraint("Horizontal", 6, 3, 7, 3),
    Sketcher.Constraint("Vertical", 4, 3, 6, 3),
    Sketcher.Constraint("Vertical", 5, 3, 7, 3),
    Sketcher.Constraint("Diameter", 4, 3.2),
    Sketcher.Constraint("DistanceY", 0, 2, 0, 1, 210.0),
    Sketcher.Constraint("DistanceY", -1, 1, 4, 3, 6.0),
    Sketcher.Constraint("DistanceX", -1, 1, 5, 3, 291.0),
    Sketcher.Constraint("DistanceY", -1, 1, 6, 3, 204.0),
    Sketcher.Constraint("DistanceX", -1, 1, 1, 2, 297.0),
    Sketcher.Constraint("DistanceX", 0, 2, 4, 3, 6.0),
    Sketcher.Constraint("DistanceX", 1, 1, 1, 2, 126.265),
])
sketch10.setExpression("Constraints[16]", "Params.sketch10_diameter")
sketch10.setExpression("Constraints[17]", "Params.sketch10_height")
pad10 = doc.addObject("PartDesign::Pad", "Pad009")
body10.addObject(pad10)
pad10.Profile = sketch10
pad10.setExpression("Length", "Params.pad10_length")
body11 = doc.addObject("PartDesign::Body", "Body010")
body11.AllowCompound = True

sketch11 = doc.addObject("Sketcher::SketchObject", "Sketch010")
body11.addObject(sketch11)
sketch11.AttachmentSupport = (doc.getObject("XY_Plane010"), [""])
sketch11.MapMode = "FlatFace"
sketch11.AttachmentOffset = App.Placement(App.Vector(0, 0, 9.6), App.Rotation())
add_polygon(sketch11, [(174, 99), (174, 93), (202, 93), (202, 99)])
add_polygon(sketch11, [(174, 87), (174, 81), (202, 81), (202, 87)])
sketch11.addConstraint([
    Sketcher.Constraint("Vertical", 0),
    Sketcher.Constraint("Horizontal", 1),
    Sketcher.Constraint("Vertical", 2),
    Sketcher.Constraint("Horizontal", 3),
    Sketcher.Constraint("Vertical", 4),
    Sketcher.Constraint("Horizontal", 5),
    Sketcher.Constraint("Vertical", 6),
    Sketcher.Constraint("Horizontal", 7),
    Sketcher.Constraint("Vertical", 3, 2, 4, 2),
    Sketcher.Constraint("Vertical", 2, 2, 5, 2),
    Sketcher.Constraint("Equal", 2, 4),
    Sketcher.Constraint("DistanceX", 1, 1, 1, 2, 28.0),
    Sketcher.Constraint("DistanceY", 0, 2, 0, 1, 6.0),
    Sketcher.Constraint("DistanceY", 4, 2, 0, 2, 12.7),
    Sketcher.Constraint("DistanceX", -1, 1, 0, 2, 173.88),
    Sketcher.Constraint("DistanceY", -1, 1, 0, 2, 93.255),
])
sketch11.setExpression("Constraints[19]", "Params.sketch11_width")
sketch11.setExpression("Constraints[20]", "Params.sketch11_height")
pad11 = doc.addObject("PartDesign::Pad", "Pad010")
body11.addObject(pad11)
pad11.Profile = sketch11
pad11.setExpression("Length", "Params.pad11_length")
doc.recompute()

boolean4 = doc.addObject("PartDesign::Boolean", "Boolean003")
body11.addObject(boolean4)
boolean4.Type = "Fuse"
boolean4.addObjects([body10])
body12 = doc.addObject("PartDesign::Body", "Body011")

sketch12 = doc.addObject("Sketcher::SketchObject", "Sketch011")
body12.addObject(sketch12)
sketch12.AttachmentSupport = (doc.getObject("XY_Plane011"), [""])
sketch12.MapMode = "FlatFace"
sketch12.AttachmentOffset = App.Placement(App.Vector(0, 0, 206), App.Rotation())
add_polygon(sketch12, [(125, 210), (125, 0), (297, 0), (297, 210)])
sketch12.addConstraint([
    Sketcher.Constraint("Vertical", 0),
    Sketcher.Constraint("Horizontal", 1),
    Sketcher.Constraint("Vertical", 2),
    Sketcher.Constraint("Horizontal", 3),
    Sketcher.Constraint("PointOnObject", 0, 2, -1),
    Sketcher.Constraint("DistanceY", 0, 2, 0, 1, 210.0),
    Sketcher.Constraint("DistanceX", -1, 1, 1, 2, 297.0),
    Sketcher.Constraint("DistanceX", 1, 1, 1, 2, 172.065),
])
sketch12.setExpression("Constraints[9]", "Params.sketch12_height")
pad12 = doc.addObject("PartDesign::Pad", "Pad011")
body12.addObject(pad12)
pad12.Profile = sketch12
pad12.setExpression("Length", "Params.pad12_length")
body13 = doc.addObject("PartDesign::Body", "Body012")
body13.AllowCompound = True

sketch13 = doc.addObject("Sketcher::SketchObject", "Sketch012")
body13.addObject(sketch13)
sketch13.AttachmentSupport = (doc.getObject("XY_Plane012"), [""])
sketch13.MapMode = "FlatFace"
sketch13.AttachmentOffset = App.Placement(App.Vector(0, 0, 207.6), App.Rotation())
add_polygon(sketch13, [(82, 69), (82, 63), (110, 63), (110, 69)])
add_polygon(sketch13, [(82, 56), (82, 50), (110, 50), (110, 56)])
sketch13.addConstraint([
    Sketcher.Constraint("Vertical", 0),
    Sketcher.Constraint("Horizontal", 1),
    Sketcher.Constraint("Vertical", 2),
    Sketcher.Constraint("Horizontal", 3),
    Sketcher.Constraint("Vertical", 4),
    Sketcher.Constraint("Horizontal", 5),
    Sketcher.Constraint("Vertical", 6),
    Sketcher.Constraint("Horizontal", 7),
    Sketcher.Constraint("Vertical", 3, 2, 4, 2),
    Sketcher.Constraint("Vertical", 2, 2, 5, 2),
    Sketcher.Constraint("Equal", 2, 4),
    Sketcher.Constraint("DistanceX", 1, 1, 1, 2, 28.0),
    Sketcher.Constraint("DistanceY", 0, 2, 0, 1, 6.0),
    Sketcher.Constraint("DistanceY", 4, 2, 0, 2, 12.7),
    Sketcher.Constraint("DistanceX", -1, 1, 0, 2, 81.885),
    Sketcher.Constraint("DistanceY", -1, 1, 0, 2, 62.947),
])
sketch13.setExpression("Constraints[19]", "Params.sketch13_width")
sketch13.setExpression("Constraints[20]", "Params.sketch13_height")
pad13 = doc.addObject("PartDesign::Pad", "Pad012")
body13.addObject(pad13)
pad13.Profile = sketch13
pad13.setExpression("Length", "Params.pad13_length")
body14 = doc.addObject("PartDesign::Body", "Body013")

sketch14 = doc.addObject("Sketcher::SketchObject", "Sketch013")
body14.addObject(sketch14)
sketch14.AttachmentSupport = (doc.getObject("XY_Plane013"), [""])
sketch14.MapMode = "FlatFace"
sketch14.AttachmentOffset = App.Placement(App.Vector(0, 0, 206), App.Rotation())
add_polygon(sketch14, [(0, 210), (0, 45), (114.9, 45), (114.9, 210)])
sketch14.addGeometry(Part.Circle(App.Vector(6, 51, 0), App.Vector(0, 0, 1), 1.6), False)
sketch14.addGeometry(Part.Circle(App.Vector(6, 72, 0), App.Vector(0, 0, 1), 1.6), False)
sketch14.addGeometry(Part.Circle(App.Vector(6, 81.8, 0), App.Vector(0, 0, 1), 1.6), False)
sketch14.addGeometry(Part.Circle(App.Vector(71.5, 51, 0), App.Vector(0, 0, 1), 1.6), False)
sketch14.addGeometry(Part.Circle(App.Vector(71.5, 72, 0), App.Vector(0, 0, 1), 1.6), False)
sketch14.addGeometry(Part.Circle(App.Vector(108.9, 81.8, 0), App.Vector(0, 0, 1), 1.6), False)
sketch14.addGeometry(Part.Circle(App.Vector(6, 204, 0), App.Vector(0, 0, 1), 1.6), False)
sketch14.addGeometry(Part.Circle(App.Vector(108.9, 204, 0), App.Vector(0, 0, 1), 1.6), False)
sketch14.addConstraint([
    Sketcher.Constraint("Vertical", 0),
    Sketcher.Constraint("Horizontal", 1),
    Sketcher.Constraint("Vertical", 2),
    Sketcher.Constraint("Horizontal", 3),
    Sketcher.Constraint("Equal", 4, 5),
    Sketcher.Constraint("Equal", 5, 6),
    Sketcher.Constraint("Equal", 6, 7),
    Sketcher.Constraint("Equal", 7, 8),
    Sketcher.Constraint("Equal", 8, 9),
    Sketcher.Constraint("Equal", 9, 10),
    Sketcher.Constraint("Equal", 10, 11),
    Sketcher.Constraint("PointOnObject", 0, 2, -2),
    Sketcher.Constraint("Horizontal", 4, 3, 7, 3),
    Sketcher.Constraint("Horizontal", 5, 3, 8, 3),
    Sketcher.Constraint("Horizontal", 6, 3, 9, 3),
    Sketcher.Constraint("Horizontal", 10, 3, 11, 3),
    Sketcher.Constraint("Vertical", 4, 3, 5, 3),
    Sketcher.Constraint("Vertical", 5, 3, 6, 3),
    Sketcher.Constraint("Vertical", 7, 3, 8, 3),
    Sketcher.Constraint("Vertical", 6, 3, 10, 3),
    Sketcher.Constraint("Vertical", 9, 3, 11, 3),
    Sketcher.Constraint("Diameter", 4, 3.2),
    Sketcher.Constraint("DistanceY", 0, 2, 0, 1, 165.0),
    Sketcher.Constraint("DistanceX", -1, 1, 4, 3, 6.0),
    Sketcher.Constraint("DistanceY", -1, 1, 4, 3, 51.0),
    Sketcher.Constraint("DistanceY", -1, 1, 5, 3, 72.0),
    Sketcher.Constraint("DistanceY", -1, 1, 10, 3, 204.0),
    Sketcher.Constraint("DistanceY", -1, 1, 0, 2, 45.0),
    Sketcher.Constraint("DistanceX", 9, 3, 1, 2, 6.0),
    Sketcher.Constraint("DistanceX", 1, 1, 1, 2, 114.935),
    Sketcher.Constraint("DistanceX", -1, 1, 7, 3, 71.47),
    Sketcher.Constraint("DistanceY", -1, 1, 6, 3, 81.822),
])
sketch14.setExpression("Constraints[25]", "Params.sketch14_diameter")
sketch14.setExpression("Constraints[26]", "Params.sketch14_height")
pad14 = doc.addObject("PartDesign::Pad", "Pad013")
body14.addObject(pad14)
pad14.Profile = sketch14
pad14.setExpression("Length", "Params.pad14_length")
doc.recompute()

boolean5 = doc.addObject("PartDesign::Boolean", "Boolean004")
body14.addObject(boolean5)
boolean5.Type = "Fuse"
boolean5.addObjects([body13])

doc.recompute()
